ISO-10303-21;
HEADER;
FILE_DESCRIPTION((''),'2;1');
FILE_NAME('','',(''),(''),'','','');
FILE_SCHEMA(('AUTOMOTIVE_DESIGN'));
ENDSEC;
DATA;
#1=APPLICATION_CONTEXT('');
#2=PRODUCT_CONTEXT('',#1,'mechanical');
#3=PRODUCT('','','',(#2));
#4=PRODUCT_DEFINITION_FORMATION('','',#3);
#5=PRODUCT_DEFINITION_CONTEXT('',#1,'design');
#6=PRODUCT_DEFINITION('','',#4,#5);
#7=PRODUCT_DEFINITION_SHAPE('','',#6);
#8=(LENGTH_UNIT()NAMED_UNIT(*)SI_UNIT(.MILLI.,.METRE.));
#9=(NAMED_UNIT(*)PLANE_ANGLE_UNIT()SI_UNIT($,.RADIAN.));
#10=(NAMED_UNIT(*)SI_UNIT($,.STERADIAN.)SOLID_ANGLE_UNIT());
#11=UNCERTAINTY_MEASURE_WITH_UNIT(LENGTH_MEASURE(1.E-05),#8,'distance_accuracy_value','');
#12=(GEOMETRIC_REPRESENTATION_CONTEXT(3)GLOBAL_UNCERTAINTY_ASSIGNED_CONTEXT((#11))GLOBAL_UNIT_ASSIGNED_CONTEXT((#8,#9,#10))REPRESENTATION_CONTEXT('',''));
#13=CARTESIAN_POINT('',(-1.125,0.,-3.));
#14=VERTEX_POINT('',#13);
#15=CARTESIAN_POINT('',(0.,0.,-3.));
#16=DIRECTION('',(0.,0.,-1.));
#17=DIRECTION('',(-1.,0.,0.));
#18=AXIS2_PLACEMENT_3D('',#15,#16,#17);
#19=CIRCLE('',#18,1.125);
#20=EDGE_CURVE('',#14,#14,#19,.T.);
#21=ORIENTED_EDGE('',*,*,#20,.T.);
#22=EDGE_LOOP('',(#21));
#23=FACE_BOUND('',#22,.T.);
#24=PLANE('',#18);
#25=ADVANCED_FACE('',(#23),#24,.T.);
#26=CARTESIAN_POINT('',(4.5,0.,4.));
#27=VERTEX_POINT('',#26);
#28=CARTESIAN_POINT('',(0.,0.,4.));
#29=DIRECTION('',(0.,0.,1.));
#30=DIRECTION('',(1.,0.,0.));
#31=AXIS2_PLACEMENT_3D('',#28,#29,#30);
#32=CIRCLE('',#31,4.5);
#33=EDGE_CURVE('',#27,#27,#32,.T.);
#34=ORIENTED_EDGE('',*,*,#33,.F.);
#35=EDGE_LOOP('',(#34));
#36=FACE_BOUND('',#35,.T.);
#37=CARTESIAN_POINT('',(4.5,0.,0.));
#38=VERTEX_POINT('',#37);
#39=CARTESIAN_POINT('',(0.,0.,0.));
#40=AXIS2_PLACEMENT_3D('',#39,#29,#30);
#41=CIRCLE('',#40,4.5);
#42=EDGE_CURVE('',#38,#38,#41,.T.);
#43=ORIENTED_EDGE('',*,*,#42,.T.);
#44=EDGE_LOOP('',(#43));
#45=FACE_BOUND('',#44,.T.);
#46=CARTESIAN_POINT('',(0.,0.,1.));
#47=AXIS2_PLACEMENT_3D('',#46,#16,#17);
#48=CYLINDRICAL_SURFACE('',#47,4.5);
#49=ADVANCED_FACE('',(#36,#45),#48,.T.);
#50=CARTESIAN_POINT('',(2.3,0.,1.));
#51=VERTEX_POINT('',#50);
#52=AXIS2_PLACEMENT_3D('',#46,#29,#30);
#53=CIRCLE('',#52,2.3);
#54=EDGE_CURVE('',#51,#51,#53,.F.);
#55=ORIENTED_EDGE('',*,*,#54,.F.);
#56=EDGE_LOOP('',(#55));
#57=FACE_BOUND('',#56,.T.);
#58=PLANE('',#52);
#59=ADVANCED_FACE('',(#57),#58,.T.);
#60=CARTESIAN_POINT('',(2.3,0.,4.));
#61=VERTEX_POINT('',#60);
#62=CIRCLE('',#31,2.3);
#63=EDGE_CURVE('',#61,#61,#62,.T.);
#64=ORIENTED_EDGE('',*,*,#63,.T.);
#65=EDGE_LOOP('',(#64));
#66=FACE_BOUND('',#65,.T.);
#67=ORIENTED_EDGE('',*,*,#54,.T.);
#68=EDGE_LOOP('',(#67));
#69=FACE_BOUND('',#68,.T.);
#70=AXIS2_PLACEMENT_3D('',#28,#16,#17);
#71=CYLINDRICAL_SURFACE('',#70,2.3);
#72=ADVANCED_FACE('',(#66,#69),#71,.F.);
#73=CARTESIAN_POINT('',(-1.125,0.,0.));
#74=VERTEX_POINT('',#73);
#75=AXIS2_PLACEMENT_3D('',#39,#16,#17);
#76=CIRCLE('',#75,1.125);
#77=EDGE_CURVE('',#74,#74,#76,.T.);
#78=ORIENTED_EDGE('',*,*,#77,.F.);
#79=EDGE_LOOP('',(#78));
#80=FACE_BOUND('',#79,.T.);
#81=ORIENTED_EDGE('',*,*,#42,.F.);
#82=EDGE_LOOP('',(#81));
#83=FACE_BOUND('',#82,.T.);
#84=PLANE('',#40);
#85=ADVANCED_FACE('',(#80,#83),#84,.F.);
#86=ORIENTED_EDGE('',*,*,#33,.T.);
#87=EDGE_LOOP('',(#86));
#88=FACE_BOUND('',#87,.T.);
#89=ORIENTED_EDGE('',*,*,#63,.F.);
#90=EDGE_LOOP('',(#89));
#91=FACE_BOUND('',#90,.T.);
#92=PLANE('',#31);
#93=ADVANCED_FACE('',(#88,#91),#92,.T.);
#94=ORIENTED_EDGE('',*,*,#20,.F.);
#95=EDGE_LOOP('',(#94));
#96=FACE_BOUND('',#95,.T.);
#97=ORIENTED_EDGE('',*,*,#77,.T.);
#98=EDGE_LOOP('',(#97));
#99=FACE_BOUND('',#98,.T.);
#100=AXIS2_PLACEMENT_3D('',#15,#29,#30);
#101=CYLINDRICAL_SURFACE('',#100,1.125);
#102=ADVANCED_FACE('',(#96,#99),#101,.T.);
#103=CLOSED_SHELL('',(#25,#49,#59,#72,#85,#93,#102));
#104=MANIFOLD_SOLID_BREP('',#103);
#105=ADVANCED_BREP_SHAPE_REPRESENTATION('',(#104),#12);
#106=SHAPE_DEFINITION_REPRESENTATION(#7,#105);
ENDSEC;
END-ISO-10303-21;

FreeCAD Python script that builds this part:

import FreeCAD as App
import Part
import Sketcher

V = App.Vector

doc = App.newDocument("Part")
params = doc.addObject("Spreadsheet::Sheet", "Params")
for row, (alias, value) in enumerate([
    ("sketch1_diameter", "9 mm"),
    ("pad1_length", "1 mm"),
    ("sketch2_diameter", "2.25 mm"),
    ("pad2_length", "3 mm"),
    ("sketch3_diameter", "9 mm"),
    ("sketch3_diameter2", "4.6 mm"),
    ("pad3_length", "3 mm"),
], start=1):
    params.set(f"A{row}", alias)
    params.set(f"B{row}", "=" + value)
    params.setAlias(f"B{row}", alias)

body = doc.addObject("PartDesign::Body", "Body")

sketch1 = body.newObject("Sketcher::SketchObject", "Sketch")
sketch1.AttachmentSupport = (doc.getObject("XY_Plane"), [""])
sketch1.MapMode = "FlatFace"
sketch1.addGeometry(Part.Circle(V(0, 0, 0), V(0, 0, 1), 4.5), False)
sketch1.addConstraint([
    Sketcher.Constraint("Coincident", 0, 3, -1, 1),
    Sketcher.Constraint("Diameter", 0, 9.0),
])
sketch1.setExpression("Constraints[1]", "Params.sketch1_diameter")
pad1 = body.newObject("PartDesign::Pad", "Pad")
pad1.Profile = sketch1
pad1.setExpression("Length", "Params.pad1_length")

sketch2 = body.newObject("Sketcher::SketchObject", "Sketch001")
sketch2.AttachmentSupport = (doc.getObject("XY_Plane"), [""])
sketch2.MapMode = "FlatFace"
sketch2.addGeometry(Part.Circle(V(0, 0, 0), V(0, 0, 1), 1.1), False)
sketch2.addConstraint([
    Sketcher.Constraint("Coincident", 0, 3, -1, 1),
    Sketcher.Constraint("Diameter", 0, 2.25),
])
sketch2.setExpression("Constraints[1]", "Params.sketch2_diameter")
pad2 = body.newObject("PartDesign::Pad", "Pad001")
pad2.Profile = sketch2
pad2.setExpression("Length", "Params.pad2_length")
pad2.Reversed = True

sketch3 = body.newObject("Sketcher::SketchObject", "Sketch002")
sketch3.AttachmentSupport = (doc.getObject("XY_Plane"), [""])
sketch3.MapMode = "FlatFace"
sketch3.AttachmentOffset = App.Placement(V(0, 0, 1), App.Rotation())
sketch3.addGeometry([
    Part.Circle(V(0, 0, 0), V(0, 0, 1), 4.5),
    Part.Circle(V(0, 0, 0), V(0, 0, 1), 2.3),
], False)
sketch3.addConstraint([
    Sketcher.Constraint("Coincident", 0, 3, -1, 1),
    Sketcher.Constraint("Coincident", 1, 3, -1, 1),
    Sketcher.Constraint("Diameter", 0, 9.0),
    Sketcher.Constraint("Diameter", 1, 4.6),
])
sketch3.setExpression("Constraints[2]", "Params.sketch3_diameter")
sketch3.setExpression("Constraints[3]", "Params.sketch3_diameter2")
pad3 = body.newObject("PartDesign::Pad", "Pad002")
pad3.Profile = sketch3
pad3.setExpression("Length", "Params.pad3_length")

doc.recompute()
